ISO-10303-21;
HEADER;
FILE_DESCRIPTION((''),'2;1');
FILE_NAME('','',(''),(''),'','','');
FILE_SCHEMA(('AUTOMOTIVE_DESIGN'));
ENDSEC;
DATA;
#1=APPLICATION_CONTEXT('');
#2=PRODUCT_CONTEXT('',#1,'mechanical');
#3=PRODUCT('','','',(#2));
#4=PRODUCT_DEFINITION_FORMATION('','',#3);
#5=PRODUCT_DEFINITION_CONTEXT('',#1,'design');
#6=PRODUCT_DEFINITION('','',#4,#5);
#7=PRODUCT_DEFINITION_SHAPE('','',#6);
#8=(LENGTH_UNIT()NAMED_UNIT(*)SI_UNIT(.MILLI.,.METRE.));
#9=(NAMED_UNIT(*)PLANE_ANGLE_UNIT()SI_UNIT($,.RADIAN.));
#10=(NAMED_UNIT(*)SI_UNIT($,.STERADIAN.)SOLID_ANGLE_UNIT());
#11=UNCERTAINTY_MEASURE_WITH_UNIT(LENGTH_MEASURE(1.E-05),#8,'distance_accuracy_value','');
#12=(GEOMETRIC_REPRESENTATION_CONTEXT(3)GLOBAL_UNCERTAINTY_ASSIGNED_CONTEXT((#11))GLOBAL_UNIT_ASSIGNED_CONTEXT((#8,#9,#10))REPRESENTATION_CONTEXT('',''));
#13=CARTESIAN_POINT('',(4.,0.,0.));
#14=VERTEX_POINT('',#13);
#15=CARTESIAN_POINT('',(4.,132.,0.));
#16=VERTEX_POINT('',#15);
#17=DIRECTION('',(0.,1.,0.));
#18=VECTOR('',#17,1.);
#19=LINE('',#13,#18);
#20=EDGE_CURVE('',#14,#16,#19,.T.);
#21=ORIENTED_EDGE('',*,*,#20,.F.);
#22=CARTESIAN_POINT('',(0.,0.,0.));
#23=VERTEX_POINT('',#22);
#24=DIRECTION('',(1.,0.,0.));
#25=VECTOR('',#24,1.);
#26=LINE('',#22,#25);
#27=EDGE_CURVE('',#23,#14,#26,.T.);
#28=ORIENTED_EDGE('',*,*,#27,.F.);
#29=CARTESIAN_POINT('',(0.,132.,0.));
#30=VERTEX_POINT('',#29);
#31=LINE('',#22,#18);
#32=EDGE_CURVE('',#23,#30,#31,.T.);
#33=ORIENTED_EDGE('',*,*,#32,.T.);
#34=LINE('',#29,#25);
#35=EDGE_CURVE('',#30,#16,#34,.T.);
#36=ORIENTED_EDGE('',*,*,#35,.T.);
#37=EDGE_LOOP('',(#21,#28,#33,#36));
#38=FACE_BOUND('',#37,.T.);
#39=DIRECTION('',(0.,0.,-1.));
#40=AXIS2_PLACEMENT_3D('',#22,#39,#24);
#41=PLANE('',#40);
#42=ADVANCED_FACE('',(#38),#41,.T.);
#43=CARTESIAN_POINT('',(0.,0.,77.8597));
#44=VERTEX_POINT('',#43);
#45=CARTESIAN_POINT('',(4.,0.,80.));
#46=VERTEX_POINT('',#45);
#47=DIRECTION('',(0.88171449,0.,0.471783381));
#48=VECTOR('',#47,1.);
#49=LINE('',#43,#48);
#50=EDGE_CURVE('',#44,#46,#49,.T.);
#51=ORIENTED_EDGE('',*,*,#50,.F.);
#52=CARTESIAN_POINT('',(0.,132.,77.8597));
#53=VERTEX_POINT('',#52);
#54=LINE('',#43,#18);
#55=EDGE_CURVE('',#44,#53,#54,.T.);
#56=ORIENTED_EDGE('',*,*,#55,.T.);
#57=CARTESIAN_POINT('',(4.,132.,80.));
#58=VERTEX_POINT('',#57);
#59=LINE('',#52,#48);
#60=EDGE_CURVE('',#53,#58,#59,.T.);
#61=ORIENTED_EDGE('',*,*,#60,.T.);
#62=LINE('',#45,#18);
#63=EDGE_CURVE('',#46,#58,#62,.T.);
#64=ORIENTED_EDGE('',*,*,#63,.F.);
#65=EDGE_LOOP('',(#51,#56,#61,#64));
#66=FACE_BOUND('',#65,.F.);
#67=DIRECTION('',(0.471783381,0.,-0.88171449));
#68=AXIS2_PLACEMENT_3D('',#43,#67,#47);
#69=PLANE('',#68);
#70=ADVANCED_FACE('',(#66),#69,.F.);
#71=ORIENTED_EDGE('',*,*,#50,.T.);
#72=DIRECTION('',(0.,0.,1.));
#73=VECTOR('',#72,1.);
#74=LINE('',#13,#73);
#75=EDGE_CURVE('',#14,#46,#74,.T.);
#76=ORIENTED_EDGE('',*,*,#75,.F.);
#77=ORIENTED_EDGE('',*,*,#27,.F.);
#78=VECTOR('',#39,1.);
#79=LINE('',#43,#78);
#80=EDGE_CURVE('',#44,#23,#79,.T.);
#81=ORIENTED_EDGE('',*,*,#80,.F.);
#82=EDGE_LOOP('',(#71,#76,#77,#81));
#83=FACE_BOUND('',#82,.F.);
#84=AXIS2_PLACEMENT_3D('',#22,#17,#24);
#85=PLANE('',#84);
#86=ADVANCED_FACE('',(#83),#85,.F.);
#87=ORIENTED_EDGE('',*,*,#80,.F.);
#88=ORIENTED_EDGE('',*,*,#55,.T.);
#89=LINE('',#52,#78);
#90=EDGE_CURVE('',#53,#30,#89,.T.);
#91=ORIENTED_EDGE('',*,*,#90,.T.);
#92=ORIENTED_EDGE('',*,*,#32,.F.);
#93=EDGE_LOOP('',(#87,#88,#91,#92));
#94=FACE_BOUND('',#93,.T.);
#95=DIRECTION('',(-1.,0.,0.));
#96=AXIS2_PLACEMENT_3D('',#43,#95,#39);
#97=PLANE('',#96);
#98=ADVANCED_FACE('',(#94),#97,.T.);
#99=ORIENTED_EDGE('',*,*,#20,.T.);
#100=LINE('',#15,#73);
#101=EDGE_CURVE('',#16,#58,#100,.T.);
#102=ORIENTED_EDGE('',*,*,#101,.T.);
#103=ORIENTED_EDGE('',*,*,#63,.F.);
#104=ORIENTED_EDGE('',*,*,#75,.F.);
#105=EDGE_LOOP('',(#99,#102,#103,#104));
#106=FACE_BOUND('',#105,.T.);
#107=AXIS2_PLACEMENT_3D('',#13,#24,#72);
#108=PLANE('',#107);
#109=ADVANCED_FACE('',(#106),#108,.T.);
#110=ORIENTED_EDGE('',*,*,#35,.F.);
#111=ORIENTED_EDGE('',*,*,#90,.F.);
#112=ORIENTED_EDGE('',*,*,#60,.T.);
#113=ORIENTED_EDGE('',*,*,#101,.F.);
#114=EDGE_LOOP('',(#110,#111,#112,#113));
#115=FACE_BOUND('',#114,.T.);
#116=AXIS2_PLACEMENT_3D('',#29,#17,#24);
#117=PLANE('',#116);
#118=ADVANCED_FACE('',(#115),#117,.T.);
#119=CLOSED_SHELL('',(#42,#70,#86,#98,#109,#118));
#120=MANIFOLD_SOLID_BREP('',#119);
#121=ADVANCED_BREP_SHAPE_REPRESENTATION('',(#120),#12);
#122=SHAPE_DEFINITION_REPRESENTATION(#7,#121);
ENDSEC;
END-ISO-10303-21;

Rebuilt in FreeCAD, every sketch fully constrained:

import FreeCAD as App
import Part
import Sketcher

V = App.Vector
Q = App.Units.Quantity

doc = App.newDocument("Part")
body = doc.addObject("PartDesign::Body", "Body")

# Sketch on XZ plane
sketch1 = doc.addObject("Sketcher::SketchObject", "Sketch")
body.addObject(sketch1)
sketch1.AttachmentSupport = (doc.XZ_Plane, [""])
sketch1.MapMode = "FlatFace"
sketch1.addGeometry([
    Part.LineSegment(V(4, 0, 0), V(0, 0, 0)),
    Part.LineSegment(V(0, 0, 0), V(0, 77.9, 0)),
    Part.LineSegment(V(0, 77.9, 0), V(4, 80, 0)),
    Part.LineSegment(V(4, 80, 0), V(4, 0, 0)),
], False)
sketch1.addConstraint([
    Sketcher.Constraint("Coincident", 0, 2, 1, 1),
    Sketcher.Constraint("Coincident", 1, 2, 2, 1),
    Sketcher.Constraint("Coincident", 2, 2, 3, 1),
    Sketcher.Constraint("Coincident", 3, 2, 0, 1),
    Sketcher.Constraint("Horizontal", 0),
    Sketcher.Constraint("Vertical", 1),
    Sketcher.Constraint("Vertical", 3),
    Sketcher.Constraint("Coincident", 0, 2, -1, 1),
    Sketcher.Constraint("DistanceX", 0, 2, 0, 1, 4.0),
    Sketcher.Constraint("DistanceY", 3, 2, 3, 1, 80.0),
    Sketcher.Constraint("Angle", 2, Q("28.1501 deg")),
])
pad1 = doc.addObject("PartDesign::Pad", "Pad")
body.addObject(pad1)
pad1.Profile = sketch1
pad1.Length = 132
pad1.Reversed = True

doc.recompute()
